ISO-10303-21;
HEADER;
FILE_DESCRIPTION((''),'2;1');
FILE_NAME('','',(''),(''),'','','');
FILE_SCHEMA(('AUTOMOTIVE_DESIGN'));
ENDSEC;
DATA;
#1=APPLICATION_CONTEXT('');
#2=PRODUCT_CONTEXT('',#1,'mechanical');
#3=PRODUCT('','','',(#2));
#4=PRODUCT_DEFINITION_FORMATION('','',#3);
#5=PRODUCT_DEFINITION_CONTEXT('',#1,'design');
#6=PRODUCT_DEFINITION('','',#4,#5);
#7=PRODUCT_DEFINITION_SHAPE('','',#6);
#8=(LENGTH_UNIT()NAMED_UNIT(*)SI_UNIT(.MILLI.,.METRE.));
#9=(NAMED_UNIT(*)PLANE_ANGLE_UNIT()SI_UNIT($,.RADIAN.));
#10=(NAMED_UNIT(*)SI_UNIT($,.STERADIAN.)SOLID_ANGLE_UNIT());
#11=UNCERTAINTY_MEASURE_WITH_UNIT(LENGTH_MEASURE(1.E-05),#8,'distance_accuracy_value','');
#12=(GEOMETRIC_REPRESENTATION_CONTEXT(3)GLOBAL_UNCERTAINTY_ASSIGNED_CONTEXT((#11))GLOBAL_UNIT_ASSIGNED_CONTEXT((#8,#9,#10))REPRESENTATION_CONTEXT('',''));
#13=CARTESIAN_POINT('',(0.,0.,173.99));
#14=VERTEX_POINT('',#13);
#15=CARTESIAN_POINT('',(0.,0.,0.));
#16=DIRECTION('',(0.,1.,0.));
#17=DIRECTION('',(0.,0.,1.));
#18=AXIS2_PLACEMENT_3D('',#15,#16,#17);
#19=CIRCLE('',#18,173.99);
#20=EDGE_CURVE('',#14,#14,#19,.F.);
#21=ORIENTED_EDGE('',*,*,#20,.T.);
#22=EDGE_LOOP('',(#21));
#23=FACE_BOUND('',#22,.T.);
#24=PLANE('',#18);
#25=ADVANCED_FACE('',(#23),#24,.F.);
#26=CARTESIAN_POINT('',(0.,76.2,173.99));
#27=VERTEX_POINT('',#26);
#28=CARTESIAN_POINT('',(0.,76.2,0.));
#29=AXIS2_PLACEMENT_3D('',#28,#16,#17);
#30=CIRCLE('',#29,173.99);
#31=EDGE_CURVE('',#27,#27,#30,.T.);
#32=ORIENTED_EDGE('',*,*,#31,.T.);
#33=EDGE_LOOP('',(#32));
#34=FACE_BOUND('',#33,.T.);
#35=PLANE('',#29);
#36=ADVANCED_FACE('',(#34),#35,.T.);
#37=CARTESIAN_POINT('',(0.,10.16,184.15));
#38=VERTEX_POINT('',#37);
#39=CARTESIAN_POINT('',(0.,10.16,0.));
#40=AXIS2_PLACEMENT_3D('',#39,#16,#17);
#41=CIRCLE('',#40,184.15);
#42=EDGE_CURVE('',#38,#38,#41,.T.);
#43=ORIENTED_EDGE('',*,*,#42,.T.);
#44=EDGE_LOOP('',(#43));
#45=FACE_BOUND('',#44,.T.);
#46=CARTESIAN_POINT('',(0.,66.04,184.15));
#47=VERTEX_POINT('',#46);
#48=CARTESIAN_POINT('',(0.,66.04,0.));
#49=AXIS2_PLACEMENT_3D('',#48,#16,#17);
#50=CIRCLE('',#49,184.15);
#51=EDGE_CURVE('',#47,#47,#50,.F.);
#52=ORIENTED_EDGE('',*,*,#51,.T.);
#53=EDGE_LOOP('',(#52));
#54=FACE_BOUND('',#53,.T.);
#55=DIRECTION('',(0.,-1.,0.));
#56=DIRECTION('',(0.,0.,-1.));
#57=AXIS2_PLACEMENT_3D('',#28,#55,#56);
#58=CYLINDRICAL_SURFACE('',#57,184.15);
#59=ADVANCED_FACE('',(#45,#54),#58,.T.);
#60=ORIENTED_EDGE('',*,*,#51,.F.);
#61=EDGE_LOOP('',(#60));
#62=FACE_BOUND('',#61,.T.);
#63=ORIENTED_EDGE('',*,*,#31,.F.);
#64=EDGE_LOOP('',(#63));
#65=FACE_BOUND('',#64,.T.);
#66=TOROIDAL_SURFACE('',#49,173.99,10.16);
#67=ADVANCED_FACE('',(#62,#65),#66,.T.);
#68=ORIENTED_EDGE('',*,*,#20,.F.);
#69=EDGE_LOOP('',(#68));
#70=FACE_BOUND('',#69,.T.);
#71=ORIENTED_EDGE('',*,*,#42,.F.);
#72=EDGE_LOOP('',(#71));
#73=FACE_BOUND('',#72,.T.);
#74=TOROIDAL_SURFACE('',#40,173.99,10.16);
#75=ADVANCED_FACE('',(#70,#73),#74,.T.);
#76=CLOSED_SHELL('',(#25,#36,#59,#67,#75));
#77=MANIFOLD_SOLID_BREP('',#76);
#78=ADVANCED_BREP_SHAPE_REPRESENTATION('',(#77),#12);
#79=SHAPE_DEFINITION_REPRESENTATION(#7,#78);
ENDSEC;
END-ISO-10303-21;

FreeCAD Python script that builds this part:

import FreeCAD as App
import Part
import Sketcher
Q = App.Units.Quantity


def edges_at(feature, points):
    """Names of the edges that pass closest to the given points."""
    edges = feature.Shape.Edges
    near = lambda p: min(range(len(edges)), key=lambda i: edges[i].distToShape(Part.Vertex(*p))[0])
    return sorted({f"Edge{near(p) + 1}" for p in points})

doc = App.newDocument("Part")
body = doc.addObject("PartDesign::Body", "Body")

# Sketch on XZ plane
sketch1 = doc.addObject("Sketcher::SketchObject", "Sketch")
body.addObject(sketch1)
sketch1.AttachmentSupport = (doc.XZ_Plane, [""])
sketch1.MapMode = "FlatFace"
sketch1.addGeometry(Part.Circle(App.Vector(0, 0, 0), App.Vector(0, 0, 1), 184), False)
sketch1.addConstraint([
    Sketcher.Constraint("Coincident", 0, 3, -1, 1),
    Sketcher.Constraint("Diameter", 0, Q("14.5 in")),
])
pad1 = doc.addObject("PartDesign::Pad", "Pad")
body.addObject(pad1)
pad1.Profile = sketch1
pad1.Length = Q("3 in")
pad1.Reversed = True
doc.recompute()

fillet = doc.addObject("PartDesign::Fillet", "Fillet")
body.addObject(fillet)
fillet.Base = (pad1, edges_at(pad1, [(-184.15, 0, 0), (-184.15, 76.2, 0)]))
fillet.Radius = Q("0.4 in")

doc.recompute()
